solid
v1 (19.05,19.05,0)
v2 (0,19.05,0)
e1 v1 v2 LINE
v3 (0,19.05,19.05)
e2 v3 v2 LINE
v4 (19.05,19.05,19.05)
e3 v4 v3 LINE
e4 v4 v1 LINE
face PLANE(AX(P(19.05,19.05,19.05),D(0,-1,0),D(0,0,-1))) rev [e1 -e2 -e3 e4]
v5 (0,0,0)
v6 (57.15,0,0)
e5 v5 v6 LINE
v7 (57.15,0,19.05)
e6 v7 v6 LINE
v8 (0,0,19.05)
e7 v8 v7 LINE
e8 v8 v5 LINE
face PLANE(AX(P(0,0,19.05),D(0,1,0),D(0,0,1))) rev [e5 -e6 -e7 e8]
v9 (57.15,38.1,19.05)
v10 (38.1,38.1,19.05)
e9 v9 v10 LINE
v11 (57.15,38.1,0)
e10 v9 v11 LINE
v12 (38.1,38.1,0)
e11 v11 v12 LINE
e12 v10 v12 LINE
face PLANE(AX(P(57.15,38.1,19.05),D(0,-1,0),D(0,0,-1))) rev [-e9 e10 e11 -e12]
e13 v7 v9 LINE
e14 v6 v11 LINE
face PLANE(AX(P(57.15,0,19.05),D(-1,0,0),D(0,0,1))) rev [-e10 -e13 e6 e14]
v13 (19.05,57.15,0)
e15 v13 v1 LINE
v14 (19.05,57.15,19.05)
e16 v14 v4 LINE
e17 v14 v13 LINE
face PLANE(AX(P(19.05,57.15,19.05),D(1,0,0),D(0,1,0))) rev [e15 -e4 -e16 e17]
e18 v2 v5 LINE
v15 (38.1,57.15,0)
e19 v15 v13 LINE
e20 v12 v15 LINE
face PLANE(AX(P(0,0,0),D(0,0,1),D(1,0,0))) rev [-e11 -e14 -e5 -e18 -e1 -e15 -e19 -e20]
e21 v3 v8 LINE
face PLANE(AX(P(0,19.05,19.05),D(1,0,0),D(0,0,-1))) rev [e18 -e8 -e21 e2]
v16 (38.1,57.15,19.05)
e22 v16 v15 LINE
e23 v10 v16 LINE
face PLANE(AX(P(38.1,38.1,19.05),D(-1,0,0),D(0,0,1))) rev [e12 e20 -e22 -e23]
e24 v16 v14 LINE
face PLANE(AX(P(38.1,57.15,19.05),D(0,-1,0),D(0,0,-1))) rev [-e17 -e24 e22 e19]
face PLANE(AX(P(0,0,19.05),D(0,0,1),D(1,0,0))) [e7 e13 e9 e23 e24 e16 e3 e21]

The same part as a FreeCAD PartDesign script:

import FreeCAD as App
import Part
import Sketcher
from FreeCAD import Vector
Q = App.Units.Quantity

doc = App.newDocument("Part")
body = doc.addObject("PartDesign::Body", "Body")

# Sketch on XY plane
sketch1 = body.newObject("Sketcher::SketchObject", "Sketch")
sketch1.AttachmentSupport = (doc.getObject("XY_Plane"), [""])
sketch1.MapMode = "FlatFace"
sketch1.addGeometry([
    Part.LineSegment(Vector(0, 0, 0), Vector(57.15, 0, 0)),  # 0
    Part.LineSegment(Vector(57.15, 0, 0), Vector(57.15, 38.1, 0)),  # 1
    Part.LineSegment(Vector(57.15, 38.1, 0), Vector(38.1, 38.1, 0)),  # 2
    Part.LineSegment(Vector(38.1, 38.1, 0), Vector(38.1, 57.15, 0)),  # 3
    Part.LineSegment(Vector(38.1, 57.15, 0), Vector(19.05, 57.15, 0)),  # 4
    Part.LineSegment(Vector(19.05, 57.15, 0), Vector(19.05, 19.05, 0)),  # 5
    Part.LineSegment(Vector(19.05, 19.05, 0), Vector(0, 19.05, 0)),  # 6
    Part.LineSegment(Vector(0, 19.05, 0), Vector(0, 0, 0)),  # 7
], False)
sketch1.addConstraint([
    Sketcher.Constraint("Coincident", 0, 2, 1, 1),
    Sketcher.Constraint("Coincident", 1, 2, 2, 1),
    Sketcher.Constraint("Coincident", 2, 2, 3, 1),
    Sketcher.Constraint("Coincident", 3, 2, 4, 1),
    Sketcher.Constraint("Coincident", 4, 2, 5, 1),
    Sketcher.Constraint("Coincident", 5, 2, 6, 1),
    Sketcher.Constraint("Coincident", 6, 2, 7, 1),
    Sketcher.Constraint("Coincident", 7, 2, 0, 1),
    Sketcher.Constraint("Horizontal", 0),
    Sketcher.Constraint("Vertical", 1),
    Sketcher.Constraint("Horizontal", 2),
    Sketcher.Constraint("Vertical", 3),
    Sketcher.Constraint("Horizontal", 4),
    Sketcher.Constraint("Vertical", 5),
    Sketcher.Constraint("Horizontal", 6),
    Sketcher.Constraint("Vertical", 7),
    Sketcher.Constraint("Coincident", 7, 2, -1, 1),
    Sketcher.Constraint("Equal", 2, 4),
    Sketcher.Constraint("Equal", 4, 6),
    Sketcher.Constraint("Equal", 6, 3),
    Sketcher.Constraint("Equal", 1, 5),
    Sketcher.Constraint("DistanceY", 1, 1, 1, 2, Q("1.5 in")),
    Sketcher.Constraint("DistanceX", 0, 1, 0, 2, Q("2.25 in")),
])
pad1 = body.newObject("PartDesign::Pad", "Pad")
pad1.Profile = sketch1
pad1.Length = Q("0.75 in")

doc.recompute()
